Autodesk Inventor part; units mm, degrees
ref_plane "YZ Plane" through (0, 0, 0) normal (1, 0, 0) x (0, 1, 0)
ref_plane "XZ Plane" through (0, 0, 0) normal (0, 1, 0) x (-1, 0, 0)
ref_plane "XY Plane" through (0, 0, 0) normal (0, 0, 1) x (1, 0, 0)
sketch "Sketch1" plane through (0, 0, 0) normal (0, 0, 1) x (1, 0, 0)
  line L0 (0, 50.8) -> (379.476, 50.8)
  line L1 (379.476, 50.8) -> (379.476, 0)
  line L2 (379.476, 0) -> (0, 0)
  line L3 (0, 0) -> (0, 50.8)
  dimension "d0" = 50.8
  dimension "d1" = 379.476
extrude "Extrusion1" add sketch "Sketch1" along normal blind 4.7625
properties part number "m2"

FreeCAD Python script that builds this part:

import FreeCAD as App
import Part
import Sketcher

V = App.Vector
Q = App.Units.Quantity

doc = App.newDocument("Part")
params = doc.addObject("Spreadsheet::Sheet", "Params")
for row, (alias, value) in enumerate([
    ("sketch1_height", "2 in"),
    ("sketch1_width", "14.94 in"),
    ("pad1_length", "0.1875 in"),
], start=1):
    params.set(f"A{row}", alias)
    params.set(f"B{row}", "=" + value)
    params.setAlias(f"B{row}", alias)

body = doc.addObject("PartDesign::Body", "Body")

# Sketch on XY plane
sketch1 = body.newObject("Sketcher::SketchObject", "Sketch")
sketch1.AttachmentSupport = (doc.getObject("XY_Plane"), [""])
sketch1.MapMode = "FlatFace"
sketch1.addGeometry(Part.LineSegment(V(379, 51, 0), V(0, 51, 0)), False)
sketch1.addGeometry(Part.LineSegment(V(0, 51, 0), V(0, 0, 0)), False)
sketch1.addGeometry(Part.LineSegment(V(0, 0, 0), V(379, 0, 0)), False)
sketch1.addGeometry(Part.LineSegment(V(379, 0, 0), V(379, 51, 0)), False)
sketch1.addConstraint(Sketcher.Constraint("Coincident", 0, 2, 1, 1))
sketch1.addConstraint(Sketcher.Constraint("Coincident", 1, 2, 2, 1))
sketch1.addConstraint(Sketcher.Constraint("Coincident", 2, 2, 3, 1))
sketch1.addConstraint(Sketcher.Constraint("Coincident", 3, 2, 0, 1))
sketch1.addConstraint(Sketcher.Constraint("Horizontal", 0))
sketch1.addConstraint(Sketcher.Constraint("Vertical", 1))
sketch1.addConstraint(Sketcher.Constraint("Horizontal", 2))
sketch1.addConstraint(Sketcher.Constraint("Vertical", 3))
sketch1.addConstraint(Sketcher.Constraint("Coincident", 1, 2, -1, 1))
sketch1.addConstraint(Sketcher.Constraint("DistanceY", 1, 2, 1, 1, Q("2 in")))
sketch1.addConstraint(Sketcher.Constraint("DistanceX", 0, 2, 0, 1, Q("14.94 in")))
sketch1.setExpression("Constraints[9]", "Params.sketch1_height")
sketch1.setExpression("Constraints[10]", "Params.sketch1_width")
pad1 = body.newObject("PartDesign::Pad", "Pad")
pad1.Profile = sketch1
pad1.setExpression("Length", "Params.pad1_length")

doc.recompute()
